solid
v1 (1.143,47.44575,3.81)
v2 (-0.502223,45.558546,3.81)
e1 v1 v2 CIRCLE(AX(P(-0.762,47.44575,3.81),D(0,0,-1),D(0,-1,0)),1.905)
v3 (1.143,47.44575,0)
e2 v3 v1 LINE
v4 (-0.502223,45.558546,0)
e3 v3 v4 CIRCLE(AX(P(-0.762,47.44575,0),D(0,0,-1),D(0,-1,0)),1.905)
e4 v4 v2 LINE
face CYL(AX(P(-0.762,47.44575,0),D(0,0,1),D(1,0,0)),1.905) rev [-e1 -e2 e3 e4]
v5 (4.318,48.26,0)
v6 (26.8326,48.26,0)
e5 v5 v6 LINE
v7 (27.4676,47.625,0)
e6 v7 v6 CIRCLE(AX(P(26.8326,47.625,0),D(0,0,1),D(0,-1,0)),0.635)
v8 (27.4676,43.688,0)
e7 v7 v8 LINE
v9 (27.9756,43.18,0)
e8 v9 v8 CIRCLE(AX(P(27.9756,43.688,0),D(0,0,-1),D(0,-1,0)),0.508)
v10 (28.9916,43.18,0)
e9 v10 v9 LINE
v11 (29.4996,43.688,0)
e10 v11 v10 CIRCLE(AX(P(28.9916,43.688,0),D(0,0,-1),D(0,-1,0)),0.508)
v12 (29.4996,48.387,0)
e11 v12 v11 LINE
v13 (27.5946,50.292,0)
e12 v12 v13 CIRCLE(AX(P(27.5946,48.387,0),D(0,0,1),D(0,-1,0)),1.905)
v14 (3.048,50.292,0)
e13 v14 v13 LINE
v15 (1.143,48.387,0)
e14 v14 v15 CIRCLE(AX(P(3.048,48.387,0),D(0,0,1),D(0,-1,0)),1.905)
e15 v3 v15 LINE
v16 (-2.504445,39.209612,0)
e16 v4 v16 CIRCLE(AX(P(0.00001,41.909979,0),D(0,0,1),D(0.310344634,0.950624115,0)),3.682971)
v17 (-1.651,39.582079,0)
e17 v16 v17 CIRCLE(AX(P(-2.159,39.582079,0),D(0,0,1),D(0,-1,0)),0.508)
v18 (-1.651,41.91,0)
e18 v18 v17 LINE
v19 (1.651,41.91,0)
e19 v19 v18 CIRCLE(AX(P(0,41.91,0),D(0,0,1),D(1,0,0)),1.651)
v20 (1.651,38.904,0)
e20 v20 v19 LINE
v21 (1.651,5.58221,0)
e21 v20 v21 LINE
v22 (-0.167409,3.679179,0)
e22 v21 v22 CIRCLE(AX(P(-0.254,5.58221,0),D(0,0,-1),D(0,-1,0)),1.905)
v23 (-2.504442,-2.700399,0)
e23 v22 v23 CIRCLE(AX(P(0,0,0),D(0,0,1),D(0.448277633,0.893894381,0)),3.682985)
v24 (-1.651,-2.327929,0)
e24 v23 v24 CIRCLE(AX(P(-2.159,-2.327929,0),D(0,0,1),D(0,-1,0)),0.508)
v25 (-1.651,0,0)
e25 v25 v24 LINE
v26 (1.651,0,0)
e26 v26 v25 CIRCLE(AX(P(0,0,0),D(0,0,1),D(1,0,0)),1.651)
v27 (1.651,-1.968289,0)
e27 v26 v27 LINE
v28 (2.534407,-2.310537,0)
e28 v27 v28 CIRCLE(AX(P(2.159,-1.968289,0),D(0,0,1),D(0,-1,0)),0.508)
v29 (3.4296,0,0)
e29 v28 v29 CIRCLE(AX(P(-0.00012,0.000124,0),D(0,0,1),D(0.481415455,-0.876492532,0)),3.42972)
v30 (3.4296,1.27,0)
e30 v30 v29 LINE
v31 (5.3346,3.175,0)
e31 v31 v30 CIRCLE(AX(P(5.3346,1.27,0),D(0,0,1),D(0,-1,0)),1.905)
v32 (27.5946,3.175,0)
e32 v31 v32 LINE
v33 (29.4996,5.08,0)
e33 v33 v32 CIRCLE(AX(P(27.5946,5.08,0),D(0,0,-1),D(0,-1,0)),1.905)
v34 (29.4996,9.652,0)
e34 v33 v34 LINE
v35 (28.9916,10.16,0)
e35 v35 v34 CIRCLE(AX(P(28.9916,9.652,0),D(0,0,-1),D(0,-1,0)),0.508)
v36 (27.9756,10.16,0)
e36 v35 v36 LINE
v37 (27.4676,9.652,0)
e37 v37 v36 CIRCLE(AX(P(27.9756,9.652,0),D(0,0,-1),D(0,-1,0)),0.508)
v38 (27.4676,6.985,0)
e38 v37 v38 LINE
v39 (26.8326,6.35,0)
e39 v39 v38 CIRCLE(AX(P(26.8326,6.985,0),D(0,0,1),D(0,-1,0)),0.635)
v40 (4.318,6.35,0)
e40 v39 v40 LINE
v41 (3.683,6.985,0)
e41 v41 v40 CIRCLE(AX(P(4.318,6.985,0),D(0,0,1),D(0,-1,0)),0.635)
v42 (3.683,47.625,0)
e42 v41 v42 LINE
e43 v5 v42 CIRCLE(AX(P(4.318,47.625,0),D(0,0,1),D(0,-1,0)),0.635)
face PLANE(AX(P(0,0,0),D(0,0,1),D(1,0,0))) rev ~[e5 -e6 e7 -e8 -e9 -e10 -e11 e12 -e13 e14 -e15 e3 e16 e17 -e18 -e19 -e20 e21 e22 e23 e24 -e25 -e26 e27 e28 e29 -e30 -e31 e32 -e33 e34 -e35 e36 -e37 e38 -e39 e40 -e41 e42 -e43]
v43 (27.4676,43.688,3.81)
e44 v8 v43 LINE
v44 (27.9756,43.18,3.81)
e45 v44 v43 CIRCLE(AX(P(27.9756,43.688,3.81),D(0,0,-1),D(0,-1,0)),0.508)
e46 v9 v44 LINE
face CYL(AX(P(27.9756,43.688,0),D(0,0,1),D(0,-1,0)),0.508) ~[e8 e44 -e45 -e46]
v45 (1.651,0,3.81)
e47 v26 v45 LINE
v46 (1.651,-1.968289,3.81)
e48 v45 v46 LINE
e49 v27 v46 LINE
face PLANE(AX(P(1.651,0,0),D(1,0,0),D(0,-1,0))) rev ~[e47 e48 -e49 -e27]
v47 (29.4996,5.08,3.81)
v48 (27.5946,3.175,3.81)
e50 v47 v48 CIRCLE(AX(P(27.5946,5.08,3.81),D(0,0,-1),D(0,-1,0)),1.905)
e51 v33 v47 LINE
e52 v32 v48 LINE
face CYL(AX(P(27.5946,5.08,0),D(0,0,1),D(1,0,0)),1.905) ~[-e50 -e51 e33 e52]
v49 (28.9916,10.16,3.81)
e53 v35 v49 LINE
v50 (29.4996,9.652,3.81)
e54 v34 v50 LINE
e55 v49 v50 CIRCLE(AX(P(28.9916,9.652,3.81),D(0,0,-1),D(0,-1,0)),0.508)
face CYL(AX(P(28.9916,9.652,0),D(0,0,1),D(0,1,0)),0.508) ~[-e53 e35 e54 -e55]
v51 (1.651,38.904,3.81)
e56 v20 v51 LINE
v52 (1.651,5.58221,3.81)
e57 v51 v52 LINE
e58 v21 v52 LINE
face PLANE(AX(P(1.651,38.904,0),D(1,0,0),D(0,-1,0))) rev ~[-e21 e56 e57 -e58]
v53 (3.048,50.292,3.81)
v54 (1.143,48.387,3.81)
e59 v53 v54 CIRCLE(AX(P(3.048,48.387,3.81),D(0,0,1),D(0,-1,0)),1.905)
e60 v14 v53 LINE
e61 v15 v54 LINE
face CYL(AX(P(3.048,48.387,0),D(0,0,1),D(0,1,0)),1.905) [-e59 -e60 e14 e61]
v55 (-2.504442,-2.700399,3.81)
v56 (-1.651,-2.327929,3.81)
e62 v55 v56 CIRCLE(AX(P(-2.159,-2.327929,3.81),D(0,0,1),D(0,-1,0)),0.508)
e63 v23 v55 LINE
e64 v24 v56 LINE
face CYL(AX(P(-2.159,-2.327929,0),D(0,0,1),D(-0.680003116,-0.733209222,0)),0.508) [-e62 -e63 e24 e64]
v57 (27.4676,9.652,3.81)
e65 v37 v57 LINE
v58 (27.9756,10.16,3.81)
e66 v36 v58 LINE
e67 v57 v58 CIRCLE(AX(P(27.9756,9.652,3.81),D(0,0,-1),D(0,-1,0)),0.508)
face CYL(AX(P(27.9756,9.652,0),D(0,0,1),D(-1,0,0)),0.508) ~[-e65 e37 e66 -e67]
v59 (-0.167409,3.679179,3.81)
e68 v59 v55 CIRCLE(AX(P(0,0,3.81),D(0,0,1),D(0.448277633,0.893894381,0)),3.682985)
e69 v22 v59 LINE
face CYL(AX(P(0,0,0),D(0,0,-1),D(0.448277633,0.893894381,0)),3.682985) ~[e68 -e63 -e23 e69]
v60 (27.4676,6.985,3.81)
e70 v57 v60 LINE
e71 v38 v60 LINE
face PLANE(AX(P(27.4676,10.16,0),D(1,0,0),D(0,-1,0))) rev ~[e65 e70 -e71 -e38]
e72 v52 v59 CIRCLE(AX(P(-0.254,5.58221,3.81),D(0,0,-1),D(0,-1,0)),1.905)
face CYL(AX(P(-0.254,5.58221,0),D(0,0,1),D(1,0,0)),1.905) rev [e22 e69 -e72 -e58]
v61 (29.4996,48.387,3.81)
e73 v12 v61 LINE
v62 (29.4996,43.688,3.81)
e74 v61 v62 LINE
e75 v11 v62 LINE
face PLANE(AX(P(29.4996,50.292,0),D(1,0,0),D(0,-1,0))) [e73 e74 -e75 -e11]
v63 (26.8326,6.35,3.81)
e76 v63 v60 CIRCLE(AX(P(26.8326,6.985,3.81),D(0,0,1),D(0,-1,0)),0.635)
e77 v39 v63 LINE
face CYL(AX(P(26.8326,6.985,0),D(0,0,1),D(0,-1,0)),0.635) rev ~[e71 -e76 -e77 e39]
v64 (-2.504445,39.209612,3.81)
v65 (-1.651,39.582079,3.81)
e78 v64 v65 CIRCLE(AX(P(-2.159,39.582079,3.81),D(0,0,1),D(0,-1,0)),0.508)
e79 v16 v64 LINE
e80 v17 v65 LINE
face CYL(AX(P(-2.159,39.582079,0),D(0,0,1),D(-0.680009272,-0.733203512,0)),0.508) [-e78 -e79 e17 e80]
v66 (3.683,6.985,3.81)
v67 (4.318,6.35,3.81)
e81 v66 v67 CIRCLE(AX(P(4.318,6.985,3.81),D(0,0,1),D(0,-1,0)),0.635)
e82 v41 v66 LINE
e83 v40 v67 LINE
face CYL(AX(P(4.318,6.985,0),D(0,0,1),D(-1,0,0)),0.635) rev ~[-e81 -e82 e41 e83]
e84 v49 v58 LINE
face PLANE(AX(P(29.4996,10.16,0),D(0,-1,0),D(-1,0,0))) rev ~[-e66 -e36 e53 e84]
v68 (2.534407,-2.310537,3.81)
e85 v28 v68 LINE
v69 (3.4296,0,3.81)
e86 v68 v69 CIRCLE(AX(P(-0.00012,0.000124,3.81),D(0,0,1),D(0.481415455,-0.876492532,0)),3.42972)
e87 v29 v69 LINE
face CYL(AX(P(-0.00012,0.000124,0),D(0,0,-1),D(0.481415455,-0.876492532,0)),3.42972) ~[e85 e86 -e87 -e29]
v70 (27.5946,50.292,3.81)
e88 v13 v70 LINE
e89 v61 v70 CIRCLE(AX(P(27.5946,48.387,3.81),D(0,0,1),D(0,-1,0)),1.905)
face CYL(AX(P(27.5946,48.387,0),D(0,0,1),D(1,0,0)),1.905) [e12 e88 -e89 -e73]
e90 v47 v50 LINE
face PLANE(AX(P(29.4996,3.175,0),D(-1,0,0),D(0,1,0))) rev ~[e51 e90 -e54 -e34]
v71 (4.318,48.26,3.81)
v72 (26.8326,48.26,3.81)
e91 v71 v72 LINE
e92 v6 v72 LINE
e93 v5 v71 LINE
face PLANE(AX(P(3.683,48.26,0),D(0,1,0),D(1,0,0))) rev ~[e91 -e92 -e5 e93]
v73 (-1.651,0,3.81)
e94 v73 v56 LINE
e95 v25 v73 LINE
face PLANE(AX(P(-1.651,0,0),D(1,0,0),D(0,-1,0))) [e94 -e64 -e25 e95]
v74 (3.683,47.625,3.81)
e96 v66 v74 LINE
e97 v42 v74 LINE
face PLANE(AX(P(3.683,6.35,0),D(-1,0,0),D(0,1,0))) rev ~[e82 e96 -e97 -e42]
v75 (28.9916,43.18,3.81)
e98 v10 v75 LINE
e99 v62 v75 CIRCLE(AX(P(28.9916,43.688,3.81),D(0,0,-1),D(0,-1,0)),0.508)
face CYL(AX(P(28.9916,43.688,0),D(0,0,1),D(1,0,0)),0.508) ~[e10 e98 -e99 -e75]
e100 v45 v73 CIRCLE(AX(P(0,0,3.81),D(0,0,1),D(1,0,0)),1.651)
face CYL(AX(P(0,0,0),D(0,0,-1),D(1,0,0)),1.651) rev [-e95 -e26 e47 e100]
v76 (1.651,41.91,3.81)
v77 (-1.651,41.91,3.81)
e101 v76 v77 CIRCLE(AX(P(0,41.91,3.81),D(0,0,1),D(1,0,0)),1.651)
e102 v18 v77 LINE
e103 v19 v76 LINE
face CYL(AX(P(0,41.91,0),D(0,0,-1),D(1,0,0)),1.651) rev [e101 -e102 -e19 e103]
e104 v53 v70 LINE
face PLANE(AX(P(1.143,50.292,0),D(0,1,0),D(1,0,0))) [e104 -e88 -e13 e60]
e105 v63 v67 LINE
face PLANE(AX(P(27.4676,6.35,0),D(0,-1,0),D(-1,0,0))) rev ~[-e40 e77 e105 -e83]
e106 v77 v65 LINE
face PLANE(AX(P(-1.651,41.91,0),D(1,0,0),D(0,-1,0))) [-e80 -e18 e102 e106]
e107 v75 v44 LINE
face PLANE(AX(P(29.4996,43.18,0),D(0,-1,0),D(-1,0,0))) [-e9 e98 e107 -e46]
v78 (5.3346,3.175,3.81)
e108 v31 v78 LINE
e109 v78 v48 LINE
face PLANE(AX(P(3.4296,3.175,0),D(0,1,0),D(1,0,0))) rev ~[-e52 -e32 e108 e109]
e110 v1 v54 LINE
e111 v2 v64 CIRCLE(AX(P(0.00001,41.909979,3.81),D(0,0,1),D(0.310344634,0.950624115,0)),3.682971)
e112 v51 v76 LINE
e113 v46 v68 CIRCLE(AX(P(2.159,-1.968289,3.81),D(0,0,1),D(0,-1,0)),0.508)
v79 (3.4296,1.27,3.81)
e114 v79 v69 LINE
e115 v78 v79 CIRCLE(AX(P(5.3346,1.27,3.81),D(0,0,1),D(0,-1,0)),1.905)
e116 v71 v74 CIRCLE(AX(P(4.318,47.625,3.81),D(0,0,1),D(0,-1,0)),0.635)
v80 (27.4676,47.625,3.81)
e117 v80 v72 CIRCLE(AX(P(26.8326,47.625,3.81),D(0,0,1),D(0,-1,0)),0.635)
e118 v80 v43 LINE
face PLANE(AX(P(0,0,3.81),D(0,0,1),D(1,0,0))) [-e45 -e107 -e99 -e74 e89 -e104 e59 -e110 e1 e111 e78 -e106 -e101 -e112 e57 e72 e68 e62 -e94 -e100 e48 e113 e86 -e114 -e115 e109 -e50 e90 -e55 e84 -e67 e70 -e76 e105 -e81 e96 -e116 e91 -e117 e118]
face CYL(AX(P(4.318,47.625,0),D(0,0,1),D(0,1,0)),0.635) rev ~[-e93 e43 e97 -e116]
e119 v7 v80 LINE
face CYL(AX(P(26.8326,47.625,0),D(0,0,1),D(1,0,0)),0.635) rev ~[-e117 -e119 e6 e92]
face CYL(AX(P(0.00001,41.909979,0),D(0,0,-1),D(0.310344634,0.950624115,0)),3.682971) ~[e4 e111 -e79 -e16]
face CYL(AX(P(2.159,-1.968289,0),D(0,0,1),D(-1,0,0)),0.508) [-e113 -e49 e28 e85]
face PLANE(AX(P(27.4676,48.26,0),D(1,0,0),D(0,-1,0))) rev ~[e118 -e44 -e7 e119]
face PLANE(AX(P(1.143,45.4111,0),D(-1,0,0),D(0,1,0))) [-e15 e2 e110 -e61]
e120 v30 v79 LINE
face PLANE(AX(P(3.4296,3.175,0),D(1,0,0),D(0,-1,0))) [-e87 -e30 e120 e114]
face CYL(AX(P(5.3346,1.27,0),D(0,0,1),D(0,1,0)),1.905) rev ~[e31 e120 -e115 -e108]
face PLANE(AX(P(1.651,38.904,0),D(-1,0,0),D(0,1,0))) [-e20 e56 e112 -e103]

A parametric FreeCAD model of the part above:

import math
import FreeCAD as App
import Part
import Sketcher
from FreeCAD import Vector
Q = App.Units.Quantity


def edges_at(feature, points):
    """Names of the edges that pass closest to the given points."""
    edges = feature.Shape.Edges
    near = lambda p: min(range(len(edges)), key=lambda i: edges[i].distToShape(Part.Vertex(*p))[0])
    return sorted({f"Edge{near(p) + 1}" for p in points})

doc = App.newDocument("Part")
body = doc.addObject("PartDesign::Body", "Body")

# Sketch on XY plane
sketch1 = body.newObject("Sketcher::SketchObject", "Sketch")
sketch1.AttachmentSupport = (doc.getObject("XY_Plane"), [""])
sketch1.MapMode = "FlatFace"
sketch1.addGeometry(Part.ArcOfCircle(Part.Circle(Vector(0, 0, 0), Vector(0, 0, 1), 1.651), math.radians(0), math.radians(180)), False)
sketch1.addGeometry(Part.LineSegment(Vector(1.651, 0, 0), Vector(1.651, -3.006, 0)), False)
sketch1.addGeometry(Part.ArcOfCircle(Part.Circle(Vector(0, 0, 0), Vector(0, 0, 1), 3.429553), math.radians(-61.222875), math.radians(0)), False)
sketch1.addGeometry(Part.LineSegment(Vector(3.4296, 0, 0), Vector(3.4296, 3.175, 0)), False)
sketch1.addGeometry(Part.LineSegment(Vector(3.4296, 3.175, 0), Vector(29.4996, 3.175, 0)), False)
sketch1.addGeometry(Part.LineSegment(Vector(29.4996, 3.175, 0), Vector(29.4996, 10.16, 0)), False)
sketch1.addGeometry(Part.LineSegment(Vector(29.4996, 10.16, 0), Vector(27.4676, 10.16, 0)), False)
sketch1.addGeometry(Part.LineSegment(Vector(27.4676, 10.16, 0), Vector(27.4676, 6.35, 0)), False)
sketch1.addGeometry(Part.LineSegment(Vector(27.4676, 6.35, 0), Vector(3.683, 6.35, 0)), False)
sketch1.addGeometry(Part.LineSegment(Vector(3.683, 6.35, 0), Vector(3.683, 48.26, 0)), False)
sketch1.addGeometry(Part.LineSegment(Vector(3.683, 48.26, 0), Vector(27.4676, 48.26, 0)), False)
sketch1.addGeometry(Part.LineSegment(Vector(27.4676, 48.26, 0), Vector(27.4676, 43.18, 0)), False)
sketch1.addGeometry(Part.LineSegment(Vector(27.4676, 43.18, 0), Vector(29.4996, 43.18, 0)), False)
sketch1.addGeometry(Part.LineSegment(Vector(29.4996, 43.18, 0), Vector(29.4996, 50.292, 0)), False)
sketch1.addGeometry(Part.LineSegment(Vector(29.4996, 50.292, 0), Vector(1.143, 50.292, 0)), False)
sketch1.addGeometry(Part.LineSegment(Vector(1.143, 50.292, 0), Vector(1.143, 45.4111, 0)), False)
sketch1.addGeometry(Part.ArcOfCircle(Part.Circle(Vector(0, 41.91, 0), Vector(0, 0, 1), 3.682954), math.radians(71.919754), math.radians(243.366768)), False)
sketch1.addGeometry(Part.LineSegment(Vector(-1.651, 38.6178, 0), Vector(-1.651, 41.91, 0)), False)
sketch1.addGeometry(Part.ArcOfCircle(Part.Circle(Vector(0, 41.91, 0), Vector(0, 0, 1), 1.651), math.radians(0), math.radians(180)), False)
sketch1.addGeometry(Part.LineSegment(Vector(1.651, 41.91, 0), Vector(1.651, 3.2922, 0)), False)
sketch1.addGeometry(Part.ArcOfCircle(Part.Circle(Vector(0, 0, 0), Vector(0, 0, 1), 3.682985), math.radians(63.366768), math.radians(243.366768)), False)
sketch1.addGeometry(Part.LineSegment(Vector(-1.651, -3.2922, 0), Vector(-1.651, 0, 0)), False)
sketch1.addConstraint(Sketcher.Constraint("Tangent", 0, 1, 1, 1))
sketch1.addConstraint(Sketcher.Constraint("Coincident", 1, 2, 2, 1))
sketch1.addConstraint(Sketcher.Constraint("Tangent", 2, 2, 3, 1))
sketch1.addConstraint(Sketcher.Constraint("Coincident", 3, 2, 4, 1))
sketch1.addConstraint(Sketcher.Constraint("Coincident", 4, 2, 5, 1))
sketch1.addConstraint(Sketcher.Constraint("Coincident", 5, 2, 6, 1))
sketch1.addConstraint(Sketcher.Constraint("Coincident", 6, 2, 7, 1))
sketch1.addConstraint(Sketcher.Constraint("Coincident", 7, 2, 8, 1))
sketch1.addConstraint(Sketcher.Constraint("Coincident", 8, 2, 9, 1))
sketch1.addConstraint(Sketcher.Constraint("Coincident", 9, 2, 10, 1))
sketch1.addConstraint(Sketcher.Constraint("Coincident", 10, 2, 11, 1))
sketch1.addConstraint(Sketcher.Constraint("Coincident", 11, 2, 12, 1))
sketch1.addConstraint(Sketcher.Constraint("Coincident", 12, 2, 13, 1))
sketch1.addConstraint(Sketcher.Constraint("Coincident", 13, 2, 14, 1))
sketch1.addConstraint(Sketcher.Constraint("Coincident", 14, 2, 15, 1))
sketch1.addConstraint(Sketcher.Constraint("Coincident", 15, 2, 16, 1))
sketch1.addConstraint(Sketcher.Constraint("Coincident", 16, 2, 17, 1))
sketch1.addConstraint(Sketcher.Constraint("Tangent", 17, 2, 18, 2))
sketch1.addConstraint(Sketcher.Constraint("Tangent", 18, 1, 19, 1))
sketch1.addConstraint(Sketcher.Constraint("Coincident", 19, 2, 20, 1))
sketch1.addConstraint(Sketcher.Constraint("Coincident", 20, 2, 21, 1))
sketch1.addConstraint(Sketcher.Constraint("Tangent", 21, 2, 0, 2))
sketch1.addConstraint(Sketcher.Constraint("Vertical", 1))
sketch1.addConstraint(Sketcher.Constraint("Vertical", 3))
sketch1.addConstraint(Sketcher.Constraint("Horizontal", 4))
sketch1.addConstraint(Sketcher.Constraint("Vertical", 5))
sketch1.addConstraint(Sketcher.Constraint("Horizontal", 6))
sketch1.addConstraint(Sketcher.Constraint("Vertical", 7))
sketch1.addConstraint(Sketcher.Constraint("Horizontal", 8))
sketch1.addConstraint(Sketcher.Constraint("Vertical", 9))
sketch1.addConstraint(Sketcher.Constraint("Horizontal", 10))
sketch1.addConstraint(Sketcher.Constraint("Vertical", 11))
sketch1.addConstraint(Sketcher.Constraint("Horizontal", 12))
sketch1.addConstraint(Sketcher.Constraint("Vertical", 13))
sketch1.addConstraint(Sketcher.Constraint("Horizontal", 14))
sketch1.addConstraint(Sketcher.Constraint("Vertical", 15))
sketch1.addConstraint(Sketcher.Constraint("Vertical", 17))
sketch1.addConstraint(Sketcher.Constraint("Vertical", 19))
sketch1.addConstraint(Sketcher.Constraint("Vertical", 21))
sketch1.addConstraint(Sketcher.Constraint("Coincident", 0, 3, -1, 1))
sketch1.addConstraint(Sketcher.Constraint("Coincident", 2, 3, -1, 1))
sketch1.addConstraint(Sketcher.Constraint("Coincident", 20, 3, -1, 1))
sketch1.addConstraint(Sketcher.Constraint("Coincident", 18, 3, 16, 3))
sketch1.addConstraint(Sketcher.Constraint("Equal", 0, 18))
sketch1.addConstraint(Sketcher.Constraint("Equal", 16, 20))
sketch1.addConstraint(Sketcher.Constraint("PointOnObject", 16, 3, -2))
sketch1.addConstraint(Sketcher.Constraint("Vertical", 7, 2, 10, 2))
sketch1.addConstraint(Sketcher.Constraint("Vertical", 5, 2, 12, 2))
sketch1.addConstraint(Sketcher.Constraint("DistanceY", 11, 2, 11, 1, Q("0.2 in")))
sketch1.addConstraint(Sketcher.Constraint("Radius", 0, Q("0.065 in")))
sketch1.addConstraint(Sketcher.Constraint("Radius", 16, Q("0.145 in")))
sketch1.addConstraint(Sketcher.Constraint("DistanceX", 6, 2, 6, 1, Q("0.08 in")))
sketch1.addConstraint(Sketcher.Constraint("DistanceY", 7, 2, 7, 1, Q("0.15 in")))
sketch1.addConstraint(Sketcher.Constraint("DistanceY", 9, 1, 9, 2, Q("1.65 in")))
sketch1.addConstraint(Sketcher.Constraint("DistanceX", 14, 2, 9, 2, Q("0.1 in")))
sketch1.addConstraint(Sketcher.Constraint("DistanceY", 3, 1, 3, 2, Q("0.125 in")))
sketch1.addConstraint(Sketcher.Constraint("DistanceY", -1, 1, 16, 3, Q("1.65 in")))
sketch1.addConstraint(Sketcher.Constraint("DistanceY", -1, 1, 7, 2, Q("0.25 in")))
sketch1.addConstraint(Sketcher.Constraint("DistanceX", 0, 1, 8, 2, Q("0.08 in")))
sketch1.addConstraint(Sketcher.Constraint("DistanceY", 10, 2, 13, 2, Q("0.08 in")))
sketch1.addConstraint(Sketcher.Constraint("Radius", 2, 3.4296))
sketch1.addConstraint(Sketcher.Constraint("DistanceX", 8, 2, 8, 1, Q("0.9364 in")))
pad1 = body.newObject("PartDesign::Pad", "Pad")
pad1.Profile = sketch1
pad1.Length = Q("0.15 in")
doc.recompute()

fillet = body.newObject("PartDesign::Fillet", "Fillet")
fillet.Base = (pad1, edges_at(pad1, [
    (3.683, 48.26, 1.905),
    (3.683, 6.35, 1.905),
    (27.468, 6.35, 1.905),
    (27.468, 48.26, 1.905),
]))
fillet.Radius = Q("0.025 in")
doc.recompute()

fillet2 = body.newObject("PartDesign::Fillet", "Fillet001")
fillet2.Base = (fillet, edges_at(fillet, [
    (1.143, 45.411, 1.905),
    (1.651, 3.292, 1.905),
    (3.43, 3.175, 1.905),
    (29.5, 50.292, 1.905),
    (1.143, 50.292, 1.905),
    (29.5, 3.175, 1.905),
]))
fillet2.Radius = Q("0.075 in")
doc.recompute()

fillet3 = body.newObject("PartDesign::Fillet", "Fillet002")
fillet3.Base = (fillet2, edges_at(fillet2, [(1.651, -3.006, 1.905), (-1.651, -3.292, 1.905), (-1.651, 38.618, 1.905)]))
fillet3.Radius = Q("0.02 in")
doc.recompute()

fillet4 = body.newObject("PartDesign::Fillet", "Fillet003")
fillet4.Base = (fillet3, edges_at(fillet3, [
    (27.468, 10.16, 1.905),
    (27.468, 43.18, 1.905),
    (29.5, 43.18, 1.905),
    (29.5, 10.16, 1.905),
]))
fillet4.Radius = Q("0.02 in")

doc.recompute()
